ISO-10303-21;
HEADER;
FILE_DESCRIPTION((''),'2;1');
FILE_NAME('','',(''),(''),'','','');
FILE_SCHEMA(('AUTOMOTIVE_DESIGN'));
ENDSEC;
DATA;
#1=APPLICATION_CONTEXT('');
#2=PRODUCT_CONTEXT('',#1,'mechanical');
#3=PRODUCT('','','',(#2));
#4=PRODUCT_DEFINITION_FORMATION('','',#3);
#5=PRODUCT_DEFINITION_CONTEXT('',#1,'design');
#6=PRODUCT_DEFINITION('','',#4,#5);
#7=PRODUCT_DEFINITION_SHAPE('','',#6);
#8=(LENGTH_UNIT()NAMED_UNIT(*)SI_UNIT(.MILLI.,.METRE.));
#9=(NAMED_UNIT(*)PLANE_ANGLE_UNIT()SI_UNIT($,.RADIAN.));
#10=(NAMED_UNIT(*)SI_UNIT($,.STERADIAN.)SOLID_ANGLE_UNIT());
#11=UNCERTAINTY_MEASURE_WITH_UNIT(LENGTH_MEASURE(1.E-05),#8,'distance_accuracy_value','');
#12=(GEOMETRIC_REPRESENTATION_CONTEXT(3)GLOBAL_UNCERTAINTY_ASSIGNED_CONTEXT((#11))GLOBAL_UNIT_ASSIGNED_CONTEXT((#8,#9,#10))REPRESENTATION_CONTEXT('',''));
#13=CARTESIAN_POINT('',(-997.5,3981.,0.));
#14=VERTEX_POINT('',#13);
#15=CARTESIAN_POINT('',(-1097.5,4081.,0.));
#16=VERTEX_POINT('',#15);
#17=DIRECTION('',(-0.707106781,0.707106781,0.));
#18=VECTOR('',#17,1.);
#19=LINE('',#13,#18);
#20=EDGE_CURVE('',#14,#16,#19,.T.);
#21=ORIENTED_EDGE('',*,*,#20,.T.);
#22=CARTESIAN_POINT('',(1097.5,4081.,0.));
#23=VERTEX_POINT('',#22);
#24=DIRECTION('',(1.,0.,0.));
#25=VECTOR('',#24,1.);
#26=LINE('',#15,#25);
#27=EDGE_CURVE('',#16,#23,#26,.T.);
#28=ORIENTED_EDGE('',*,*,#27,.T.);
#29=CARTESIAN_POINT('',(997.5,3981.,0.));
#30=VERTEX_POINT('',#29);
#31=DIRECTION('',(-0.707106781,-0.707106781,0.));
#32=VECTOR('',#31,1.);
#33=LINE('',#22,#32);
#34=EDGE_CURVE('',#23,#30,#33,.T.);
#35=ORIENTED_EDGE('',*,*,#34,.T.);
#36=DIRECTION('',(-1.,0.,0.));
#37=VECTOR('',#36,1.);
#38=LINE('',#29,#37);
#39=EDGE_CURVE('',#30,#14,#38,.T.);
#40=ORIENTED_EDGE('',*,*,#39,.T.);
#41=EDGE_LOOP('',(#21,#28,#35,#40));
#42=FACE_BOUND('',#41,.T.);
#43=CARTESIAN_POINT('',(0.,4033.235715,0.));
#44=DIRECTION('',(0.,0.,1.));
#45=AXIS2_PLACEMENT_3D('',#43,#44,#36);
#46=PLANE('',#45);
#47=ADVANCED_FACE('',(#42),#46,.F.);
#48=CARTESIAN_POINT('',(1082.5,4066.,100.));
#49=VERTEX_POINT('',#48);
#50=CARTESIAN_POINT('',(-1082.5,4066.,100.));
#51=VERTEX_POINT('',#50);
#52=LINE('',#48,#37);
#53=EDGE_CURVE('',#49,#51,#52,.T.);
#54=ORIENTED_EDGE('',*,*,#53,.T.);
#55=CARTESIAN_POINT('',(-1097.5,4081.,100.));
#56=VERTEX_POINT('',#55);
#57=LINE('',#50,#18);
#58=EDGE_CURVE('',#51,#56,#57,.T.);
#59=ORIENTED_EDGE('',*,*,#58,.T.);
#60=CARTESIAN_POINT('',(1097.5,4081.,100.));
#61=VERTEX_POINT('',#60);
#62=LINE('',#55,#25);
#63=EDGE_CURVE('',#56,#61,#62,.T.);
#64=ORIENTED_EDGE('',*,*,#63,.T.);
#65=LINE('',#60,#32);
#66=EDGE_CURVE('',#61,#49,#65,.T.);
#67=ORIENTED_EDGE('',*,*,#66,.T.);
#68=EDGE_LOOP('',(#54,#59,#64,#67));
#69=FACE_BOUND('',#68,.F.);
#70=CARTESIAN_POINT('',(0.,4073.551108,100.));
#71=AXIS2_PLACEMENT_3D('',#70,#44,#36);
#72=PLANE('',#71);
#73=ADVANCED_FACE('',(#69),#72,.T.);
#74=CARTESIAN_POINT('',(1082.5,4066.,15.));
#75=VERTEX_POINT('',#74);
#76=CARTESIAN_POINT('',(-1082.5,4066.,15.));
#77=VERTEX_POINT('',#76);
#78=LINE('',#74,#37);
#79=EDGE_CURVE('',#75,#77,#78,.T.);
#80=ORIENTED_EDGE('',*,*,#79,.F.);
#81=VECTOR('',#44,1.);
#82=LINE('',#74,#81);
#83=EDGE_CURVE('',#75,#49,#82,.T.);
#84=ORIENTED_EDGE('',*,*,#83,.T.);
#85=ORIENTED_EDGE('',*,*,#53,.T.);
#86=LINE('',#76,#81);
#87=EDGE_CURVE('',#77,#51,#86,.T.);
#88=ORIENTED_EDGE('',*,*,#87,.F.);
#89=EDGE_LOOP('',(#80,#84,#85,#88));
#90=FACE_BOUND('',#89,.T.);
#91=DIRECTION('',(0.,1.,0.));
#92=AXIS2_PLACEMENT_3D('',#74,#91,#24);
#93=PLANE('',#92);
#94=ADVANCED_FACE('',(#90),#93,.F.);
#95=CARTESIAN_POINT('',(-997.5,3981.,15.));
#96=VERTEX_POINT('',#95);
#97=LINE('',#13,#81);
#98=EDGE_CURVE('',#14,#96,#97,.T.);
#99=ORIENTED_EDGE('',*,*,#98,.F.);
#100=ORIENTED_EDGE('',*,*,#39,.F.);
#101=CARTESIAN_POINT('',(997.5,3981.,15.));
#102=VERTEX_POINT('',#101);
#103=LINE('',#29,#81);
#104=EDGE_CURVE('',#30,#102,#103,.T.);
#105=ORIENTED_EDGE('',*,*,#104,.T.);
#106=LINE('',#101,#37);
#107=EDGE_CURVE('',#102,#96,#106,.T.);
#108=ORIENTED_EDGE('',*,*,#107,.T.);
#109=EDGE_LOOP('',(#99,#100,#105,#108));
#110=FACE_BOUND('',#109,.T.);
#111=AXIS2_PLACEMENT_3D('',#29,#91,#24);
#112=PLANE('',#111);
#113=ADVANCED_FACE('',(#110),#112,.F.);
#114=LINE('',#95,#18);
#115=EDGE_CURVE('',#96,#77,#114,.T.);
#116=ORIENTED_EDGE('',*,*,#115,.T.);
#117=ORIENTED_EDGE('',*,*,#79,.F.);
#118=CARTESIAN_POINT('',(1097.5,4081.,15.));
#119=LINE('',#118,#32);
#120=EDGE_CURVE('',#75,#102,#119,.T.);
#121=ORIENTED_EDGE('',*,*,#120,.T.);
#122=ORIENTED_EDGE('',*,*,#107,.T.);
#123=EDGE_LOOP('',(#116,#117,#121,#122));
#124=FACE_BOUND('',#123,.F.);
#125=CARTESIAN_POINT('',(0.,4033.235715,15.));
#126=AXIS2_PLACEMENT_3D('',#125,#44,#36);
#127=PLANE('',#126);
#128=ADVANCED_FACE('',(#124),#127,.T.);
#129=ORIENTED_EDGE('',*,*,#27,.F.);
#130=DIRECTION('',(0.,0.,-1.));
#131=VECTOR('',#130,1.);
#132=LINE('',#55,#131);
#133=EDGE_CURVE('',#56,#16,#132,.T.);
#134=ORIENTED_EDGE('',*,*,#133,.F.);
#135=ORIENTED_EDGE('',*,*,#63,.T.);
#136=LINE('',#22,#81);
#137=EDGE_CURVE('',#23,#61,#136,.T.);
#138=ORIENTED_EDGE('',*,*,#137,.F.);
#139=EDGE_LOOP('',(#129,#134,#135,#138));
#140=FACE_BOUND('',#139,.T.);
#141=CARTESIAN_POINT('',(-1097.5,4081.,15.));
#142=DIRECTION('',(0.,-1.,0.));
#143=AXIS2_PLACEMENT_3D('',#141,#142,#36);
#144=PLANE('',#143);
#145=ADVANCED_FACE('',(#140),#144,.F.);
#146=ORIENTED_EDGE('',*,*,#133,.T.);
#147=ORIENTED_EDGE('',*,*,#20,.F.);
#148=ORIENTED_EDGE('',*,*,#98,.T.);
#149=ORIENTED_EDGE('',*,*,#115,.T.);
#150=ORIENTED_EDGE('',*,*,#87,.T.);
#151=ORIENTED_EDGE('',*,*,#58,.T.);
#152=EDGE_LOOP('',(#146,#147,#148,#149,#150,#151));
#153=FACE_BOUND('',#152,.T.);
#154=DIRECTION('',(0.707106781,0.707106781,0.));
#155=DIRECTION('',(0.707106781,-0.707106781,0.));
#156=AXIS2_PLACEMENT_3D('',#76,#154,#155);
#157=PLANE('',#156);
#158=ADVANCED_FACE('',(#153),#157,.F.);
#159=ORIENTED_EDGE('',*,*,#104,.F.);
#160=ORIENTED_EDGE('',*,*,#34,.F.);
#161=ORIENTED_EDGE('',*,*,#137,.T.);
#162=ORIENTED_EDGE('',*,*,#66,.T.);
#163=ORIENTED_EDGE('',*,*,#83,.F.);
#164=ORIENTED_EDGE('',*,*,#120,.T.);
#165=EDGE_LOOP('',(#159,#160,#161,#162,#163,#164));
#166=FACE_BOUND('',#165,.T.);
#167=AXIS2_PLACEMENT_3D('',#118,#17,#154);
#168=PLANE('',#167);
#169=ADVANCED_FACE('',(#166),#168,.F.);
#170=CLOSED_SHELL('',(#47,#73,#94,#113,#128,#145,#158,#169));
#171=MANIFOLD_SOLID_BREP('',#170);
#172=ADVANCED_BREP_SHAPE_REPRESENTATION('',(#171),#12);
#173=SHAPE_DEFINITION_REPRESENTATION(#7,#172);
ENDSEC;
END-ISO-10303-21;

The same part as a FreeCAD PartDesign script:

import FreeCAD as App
import Part
import Sketcher
from FreeCAD import Vector


def add_polygon(sketch, points):
    """Adds a closed chain of lines whose ends are joined by coincident constraints."""
    first, n = sketch.GeometryCount, len(points)
    for a, b in zip(points, points[1:] + points[:1]):
        sketch.addGeometry(Part.LineSegment(App.Vector(*a, 0), App.Vector(*b, 0)), False)
    for i in range(n):
        sketch.addConstraint(Sketcher.Constraint("Coincident", first + i, 2, first + (i + 1) % n, 1))

doc = App.newDocument("Part")
body = doc.addObject("PartDesign::Body", "Body")

sketch1 = doc.addObject("Sketcher::SketchObject", "Sketch")
body.addObject(sketch1)
sketch1.AttachmentSupport = (doc.XY_Plane, [""])
sketch1.MapMode = "FlatFace"
add_polygon(sketch1, [(-1097.5, 100), (1097.5, 100), (997.5, 200), (-997.5, 200)])
sketch1.addConstraint([
    Sketcher.Constraint("Horizontal", 0),
    Sketcher.Constraint("Horizontal", 2),
    Sketcher.Constraint("Perpendicular", 1, 3),
    Sketcher.Constraint("Equal", 1, 3),
    Sketcher.Constraint("DistanceX", 0, 1, 0, 2, 2195.0),
    Sketcher.Constraint("DistanceX", 2, 2, 2, 1, 1995.0),
    Sketcher.Constraint("DistanceY", -1, 1, 0, 2, 100.0),
    Sketcher.Constraint("DistanceX", -1, 1, 0, 2, 1097.5),
])
pad1 = doc.addObject("PartDesign::Pad", "Pad")
body.addObject(pad1)
pad1.Profile = sketch1
pad1.Length = 15

sketch2 = doc.addObject("Sketcher::SketchObject", "Sketch001")
body.addObject(sketch2)
sketch2.AttachmentSupport = (doc.XY_Plane, [""])
sketch2.MapMode = "FlatFace"
sketch2.AttachmentOffset = App.Placement(Vector(0, 0, 15), App.Rotation())
add_polygon(sketch2, [(-1097.5, 100), (1097.5, 100), (1082.5, 115), (-1082.5, 115)])
sketch2.addConstraint([
    Sketcher.Constraint("Horizontal", 0),
    Sketcher.Constraint("Horizontal", 2),
    Sketcher.Constraint("Perpendicular", 1, 3),
    Sketcher.Constraint("Equal", 1, 3),
    Sketcher.Constraint("DistanceX", 0, 1, 0, 2, 2195.0),
    Sketcher.Constraint("DistanceX", 2, 2, 2, 1, 2165.0),
    Sketcher.Constraint("DistanceY", -1, 1, 0, 2, 100.0),
    Sketcher.Constraint("DistanceX", -1, 1, 0, 2, 1097.5),
])
pad2 = doc.addObject("PartDesign::Pad", "Pad001")
body.addObject(pad2)
pad2.Profile = sketch2
pad2.Length = 85
body2 = doc.addObject("PartDesign::Body", "Body001")
doc.recompute()

mirroring = doc.addObject("Part::Mirroring", "Mirroring")
mirroring.Source = body
mirroring.Base = Vector(0, 2090.5, 50)
mirroring.Normal = Vector(0, -1, 0)
body2.BaseFeature = mirroring
doc.recompute()
body.Visibility = False
mirroring.Visibility = False

doc.recompute()
